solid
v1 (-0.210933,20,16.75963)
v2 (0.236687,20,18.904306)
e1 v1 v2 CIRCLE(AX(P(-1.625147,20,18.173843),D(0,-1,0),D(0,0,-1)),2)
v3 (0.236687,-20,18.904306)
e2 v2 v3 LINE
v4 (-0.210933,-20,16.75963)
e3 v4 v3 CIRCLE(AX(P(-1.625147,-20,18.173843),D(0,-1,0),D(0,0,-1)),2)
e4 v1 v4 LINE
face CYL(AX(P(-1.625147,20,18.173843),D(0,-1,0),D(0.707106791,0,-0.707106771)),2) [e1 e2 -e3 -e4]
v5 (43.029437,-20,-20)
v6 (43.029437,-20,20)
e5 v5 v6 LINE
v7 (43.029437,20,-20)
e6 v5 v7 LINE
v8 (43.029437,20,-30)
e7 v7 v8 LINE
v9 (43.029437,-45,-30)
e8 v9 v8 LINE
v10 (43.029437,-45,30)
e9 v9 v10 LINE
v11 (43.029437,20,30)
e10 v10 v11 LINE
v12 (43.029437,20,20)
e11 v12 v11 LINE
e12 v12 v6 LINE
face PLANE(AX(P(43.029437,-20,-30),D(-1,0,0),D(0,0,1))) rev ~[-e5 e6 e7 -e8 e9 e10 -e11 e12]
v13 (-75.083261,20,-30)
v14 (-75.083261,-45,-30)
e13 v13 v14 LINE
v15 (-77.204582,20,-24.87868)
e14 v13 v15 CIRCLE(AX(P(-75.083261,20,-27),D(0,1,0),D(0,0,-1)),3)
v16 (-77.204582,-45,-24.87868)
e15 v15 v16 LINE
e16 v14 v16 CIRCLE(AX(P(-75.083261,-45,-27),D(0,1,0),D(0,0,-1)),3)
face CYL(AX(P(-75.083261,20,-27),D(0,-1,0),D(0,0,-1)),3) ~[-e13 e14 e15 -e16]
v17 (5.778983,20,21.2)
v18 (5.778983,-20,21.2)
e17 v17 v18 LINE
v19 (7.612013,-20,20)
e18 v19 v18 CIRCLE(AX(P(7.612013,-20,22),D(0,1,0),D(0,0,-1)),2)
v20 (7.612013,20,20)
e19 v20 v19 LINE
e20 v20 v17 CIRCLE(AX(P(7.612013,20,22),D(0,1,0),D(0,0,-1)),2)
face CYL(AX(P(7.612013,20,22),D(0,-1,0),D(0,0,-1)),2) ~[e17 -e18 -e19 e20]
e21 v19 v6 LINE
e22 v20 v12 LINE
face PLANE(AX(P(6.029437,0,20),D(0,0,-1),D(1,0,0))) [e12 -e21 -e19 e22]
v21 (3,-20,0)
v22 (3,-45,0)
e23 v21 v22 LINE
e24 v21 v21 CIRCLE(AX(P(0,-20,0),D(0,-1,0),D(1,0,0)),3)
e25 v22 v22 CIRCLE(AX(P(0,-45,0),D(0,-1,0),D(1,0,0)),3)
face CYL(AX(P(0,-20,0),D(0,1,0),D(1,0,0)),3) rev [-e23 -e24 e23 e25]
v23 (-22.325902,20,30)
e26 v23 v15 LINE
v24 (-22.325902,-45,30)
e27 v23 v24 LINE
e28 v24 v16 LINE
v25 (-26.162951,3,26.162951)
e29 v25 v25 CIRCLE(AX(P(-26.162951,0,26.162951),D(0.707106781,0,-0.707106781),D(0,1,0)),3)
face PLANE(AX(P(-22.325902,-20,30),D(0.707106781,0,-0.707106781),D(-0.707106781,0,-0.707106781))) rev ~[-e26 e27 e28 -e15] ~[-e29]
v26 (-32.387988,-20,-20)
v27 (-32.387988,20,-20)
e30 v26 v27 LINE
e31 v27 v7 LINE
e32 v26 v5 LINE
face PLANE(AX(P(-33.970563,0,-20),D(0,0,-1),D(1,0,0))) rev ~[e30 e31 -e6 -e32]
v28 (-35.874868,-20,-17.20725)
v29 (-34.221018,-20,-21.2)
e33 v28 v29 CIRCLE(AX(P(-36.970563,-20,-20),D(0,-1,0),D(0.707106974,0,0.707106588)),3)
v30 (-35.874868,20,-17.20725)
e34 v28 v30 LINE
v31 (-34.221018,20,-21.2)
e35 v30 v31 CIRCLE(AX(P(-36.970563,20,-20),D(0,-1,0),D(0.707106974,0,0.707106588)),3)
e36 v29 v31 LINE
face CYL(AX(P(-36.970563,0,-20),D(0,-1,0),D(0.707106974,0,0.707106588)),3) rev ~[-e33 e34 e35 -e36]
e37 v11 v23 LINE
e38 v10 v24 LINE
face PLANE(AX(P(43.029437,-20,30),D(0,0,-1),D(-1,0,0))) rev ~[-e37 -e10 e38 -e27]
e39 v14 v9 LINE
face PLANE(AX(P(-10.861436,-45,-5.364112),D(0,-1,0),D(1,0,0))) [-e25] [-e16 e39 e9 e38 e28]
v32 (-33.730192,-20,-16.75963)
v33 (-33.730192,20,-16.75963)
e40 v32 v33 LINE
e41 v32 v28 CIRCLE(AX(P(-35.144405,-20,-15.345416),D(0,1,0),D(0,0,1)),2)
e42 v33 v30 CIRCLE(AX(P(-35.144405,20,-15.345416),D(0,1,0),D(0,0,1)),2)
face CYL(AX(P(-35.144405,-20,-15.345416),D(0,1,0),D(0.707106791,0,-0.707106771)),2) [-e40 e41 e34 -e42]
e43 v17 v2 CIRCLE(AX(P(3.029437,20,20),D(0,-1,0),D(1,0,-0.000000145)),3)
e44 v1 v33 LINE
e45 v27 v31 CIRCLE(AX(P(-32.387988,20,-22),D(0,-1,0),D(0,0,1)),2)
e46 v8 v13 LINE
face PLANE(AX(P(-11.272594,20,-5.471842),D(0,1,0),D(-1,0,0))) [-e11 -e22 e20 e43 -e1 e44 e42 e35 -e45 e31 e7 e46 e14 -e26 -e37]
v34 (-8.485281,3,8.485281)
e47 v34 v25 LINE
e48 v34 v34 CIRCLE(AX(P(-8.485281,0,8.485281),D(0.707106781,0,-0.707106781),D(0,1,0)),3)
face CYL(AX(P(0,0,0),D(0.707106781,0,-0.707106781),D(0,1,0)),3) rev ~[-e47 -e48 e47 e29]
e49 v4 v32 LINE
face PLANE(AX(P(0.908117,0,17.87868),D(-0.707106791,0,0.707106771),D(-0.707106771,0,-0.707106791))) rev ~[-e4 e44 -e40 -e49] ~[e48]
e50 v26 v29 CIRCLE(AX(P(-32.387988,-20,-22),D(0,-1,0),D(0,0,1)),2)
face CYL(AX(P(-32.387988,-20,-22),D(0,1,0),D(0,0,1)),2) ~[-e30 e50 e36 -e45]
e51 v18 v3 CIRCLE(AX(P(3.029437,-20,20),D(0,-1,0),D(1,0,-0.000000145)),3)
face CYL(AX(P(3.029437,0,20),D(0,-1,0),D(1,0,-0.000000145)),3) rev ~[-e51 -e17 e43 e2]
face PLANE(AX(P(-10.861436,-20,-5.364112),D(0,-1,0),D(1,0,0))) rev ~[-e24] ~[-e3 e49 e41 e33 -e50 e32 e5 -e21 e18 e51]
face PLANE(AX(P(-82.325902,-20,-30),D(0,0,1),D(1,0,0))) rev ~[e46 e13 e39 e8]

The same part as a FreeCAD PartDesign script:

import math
import FreeCAD as App
import Part
import Sketcher
Q = App.Units.Quantity


def edges_at(feature, points):
    """Names of the edges that pass closest to the given points."""
    edges = feature.Shape.Edges
    near = lambda p: min(range(len(edges)), key=lambda i: edges[i].distToShape(Part.Vertex(*p))[0])
    return sorted({f"Edge{near(p) + 1}" for p in points})


def add_polygon(sketch, points):
    """Adds a closed chain of lines whose ends are joined by coincident constraints."""
    first, n = sketch.GeometryCount, len(points)
    for a, b in zip(points, points[1:] + points[:1]):
        sketch.addGeometry(Part.LineSegment(App.Vector(*a, 0), App.Vector(*b, 0)), False)
    for i in range(n):
        sketch.addConstraint(Sketcher.Constraint("Coincident", first + i, 2, first + (i + 1) % n, 1))

doc = App.newDocument("Part")
body = doc.addObject("PartDesign::Body", "Body")

# Sketch on XZ plane
sketch1 = body.newObject("Sketcher::SketchObject", "Sketch")
sketch1.AttachmentSupport = (doc.getObject("XZ_Plane"), [""])
sketch1.MapMode = "FlatFace"
sketch1.addGeometry(Part.LineSegment(App.Vector(-34.8, -17.9, 0), App.Vector(0.9, 17.9, 0)), False)
sketch1.addGeometry(Part.ArcOfCircle(Part.Circle(App.Vector(3, 20, 0), App.Vector(0, 0, 1), 3), math.radians(0), math.radians(225)), False)
sketch1.addGeometry(Part.LineSegment(App.Vector(6, 20, 0), App.Vector(43, 20, 0)), False)
sketch1.addGeometry(Part.LineSegment(App.Vector(43, 20, 0), App.Vector(43, 30, 0)), False)
sketch1.addGeometry(Part.LineSegment(App.Vector(43, 30, 0), App.Vector(-22.3, 30, 0)), False)
sketch1.addGeometry(Part.LineSegment(App.Vector(-22.3, 30, 0), App.Vector(-82.3, -30, 0)), False)
sketch1.addGeometry(Part.LineSegment(App.Vector(-82.3, -30, 0), App.Vector(43, -30, 0)), False)
sketch1.addGeometry(Part.LineSegment(App.Vector(43, -30, 0), App.Vector(43, -20, 0)), False)
sketch1.addGeometry(Part.LineSegment(App.Vector(43, -20, 0), App.Vector(-34, -20, 0)), False)
sketch1.addGeometry(Part.ArcOfCircle(Part.Circle(App.Vector(-37, -20, 0), App.Vector(0, 0, 1), 3), math.radians(45), math.radians(360)), False)
sketch1.addConstraint(Sketcher.Constraint("Coincident", 0, 2, 1, 2))
sketch1.addConstraint(Sketcher.Constraint("Coincident", 1, 1, 2, 1))
sketch1.addConstraint(Sketcher.Constraint("Coincident", 2, 2, 3, 1))
sketch1.addConstraint(Sketcher.Constraint("Coincident", 3, 2, 4, 1))
sketch1.addConstraint(Sketcher.Constraint("Coincident", 4, 2, 5, 1))
sketch1.addConstraint(Sketcher.Constraint("Coincident", 5, 2, 6, 1))
sketch1.addConstraint(Sketcher.Constraint("Coincident", 6, 2, 7, 1))
sketch1.addConstraint(Sketcher.Constraint("Coincident", 7, 2, 8, 1))
sketch1.addConstraint(Sketcher.Constraint("Coincident", 8, 2, 9, 2))
sketch1.addConstraint(Sketcher.Constraint("Coincident", 9, 1, 0, 1))
sketch1.addConstraint(Sketcher.Constraint("Horizontal", 2))
sketch1.addConstraint(Sketcher.Constraint("Vertical", 3))
sketch1.addConstraint(Sketcher.Constraint("Horizontal", 4))
sketch1.addConstraint(Sketcher.Constraint("Horizontal", 6))
sketch1.addConstraint(Sketcher.Constraint("Vertical", 7))
sketch1.addConstraint(Sketcher.Constraint("Horizontal", 8))
sketch1.addConstraint(Sketcher.Constraint("Equal", 1, 9))
sketch1.addConstraint(Sketcher.Constraint("Symmetric", 3, 2, 6, 2, -1))
sketch1.addConstraint(Sketcher.Constraint("Parallel", 0, 5))
sketch1.addConstraint(Sketcher.Constraint("Horizontal", 9, 3, 7, 2))
sketch1.addConstraint(Sketcher.Constraint("Equal", 3, 7))
sketch1.addConstraint(Sketcher.Constraint("Radius", 1, Q("3 mm")))
sketch1.addConstraint(Sketcher.Constraint("DistanceX", 2, 1, 2, 2, Q("37 mm")))
sketch1.addConstraint(Sketcher.Constraint("DistanceX", 8, 2, 8, 1, Q("77 mm")))
sketch1.addConstraint(Sketcher.Constraint("DistanceY", 3, 1, 3, 2, Q("10 mm")))
sketch1.addConstraint(Sketcher.Constraint("Angle", 0, Q("45.000001 deg")))
sketch1.addConstraint(Sketcher.Constraint("DistanceY", -1, 1, 1, 3, Q("20 mm")))
sketch1.addConstraint(Sketcher.Constraint("DistanceY", 9, 3, -1, 1, Q("20 mm")))
sketch1.addConstraint(Sketcher.Constraint("DistanceX", 4, 2, 4, 1, Q("65.355339 mm")))
sketch1.addConstraint(Sketcher.Constraint("DistanceX", 4, 2, -1, 1, Q("22.325902 mm")))
sketch1.addConstraint(Sketcher.Constraint("DistanceY", -1, 1, 0, 2, Q("17.87868 mm")))
pad1 = body.newObject("PartDesign::Pad", "Pad")
pad1.Profile = sketch1
pad1.Length = 40
pad1.Midplane = True

# Sketch on XZ plane
sketch2 = body.newObject("Sketcher::SketchObject", "Sketch001")
sketch2.AttachmentSupport = (doc.getObject("XZ_Plane"), [""])
sketch2.MapMode = "FlatFace"
sketch2.AttachmentOffset = App.Placement(App.Vector(0, 0, 20), App.Rotation())
add_polygon(sketch2, [(43, 30), (-22.3, 30), (-82.3, -30), (43, -30)])  # lines 0-3
sketch2.addGeometry(Part.Circle(App.Vector(0, 0, 0), App.Vector(0, 0, 1), 3), False)  # 4
sketch2.addConstraint(Sketcher.Constraint("Horizontal", 0))
sketch2.addConstraint(Sketcher.Constraint("Horizontal", 2))
sketch2.addConstraint(Sketcher.Constraint("Vertical", 3))
sketch2.addConstraint(Sketcher.Constraint("Coincident", 4, 3, -1, 1))
sketch2.addConstraint(Sketcher.Constraint("Diameter", 4, Q("6 mm")))
sketch2.addConstraint(Sketcher.Constraint("DistanceY", 3, 1, 3, 2, Q("60 mm")))
sketch2.addConstraint(Sketcher.Constraint("Angle", 1, Q("-135 deg")))
sketch2.addConstraint(Sketcher.Constraint("DistanceY", -1, 1, 0, 2, Q("30 mm")))
sketch2.addConstraint(Sketcher.Constraint("DistanceX", 0, 2, 0, 1, Q("65.355339 mm")))
sketch2.addConstraint(Sketcher.Constraint("DistanceX", 0, 2, -1, 1, Q("22.325902 mm")))
pad2 = body.newObject("PartDesign::Pad", "Pad001")
pad2.Profile = sketch2
pad2.Length = 25

# Sketch on an angled plane
sketch3 = body.newObject("Sketcher::SketchObject", "Sketch002")
sketch3.Placement = App.Placement(App.Vector(0, 0, 0), App.Rotation(App.Vector(0, 1, 0), App.Vector(0.707106781, 0, 0.707106781), App.Vector(0.707106781, 0, -0.707106781), "ZXY"))
sketch3.addGeometry(Part.Circle(App.Vector(0, 0, 0), App.Vector(0, 0, 1), 3), False)
sketch3.addConstraint(Sketcher.Constraint("Coincident", 0, 3, -1, 1))
sketch3.addConstraint(Sketcher.Constraint("Diameter", 0, Q("6 mm")))
pocket1 = body.newObject("PartDesign::Pocket", "Pocket")
pocket1.Profile = sketch3
pocket1.Type = "ThroughAll"
doc.recompute()

fillet = body.newObject("PartDesign::Fillet", "Fillet")
fillet.Base = (pocket1, edges_at(pocket1, [
    (-33.971, 0, -20),
    (-34.849, 0, -17.879),
    (0.908, 0, 17.879),
    (6.029, 0, 20),
]))
fillet.Radius = 2
doc.recompute()

fillet2 = body.newObject("PartDesign::Fillet", "Fillet001")
fillet2.Base = (fillet, edges_at(fillet, [(-82.326, -12.5, -30), (-82.326, -12.5, -30)]))
fillet2.Radius = 3

doc.recompute()
